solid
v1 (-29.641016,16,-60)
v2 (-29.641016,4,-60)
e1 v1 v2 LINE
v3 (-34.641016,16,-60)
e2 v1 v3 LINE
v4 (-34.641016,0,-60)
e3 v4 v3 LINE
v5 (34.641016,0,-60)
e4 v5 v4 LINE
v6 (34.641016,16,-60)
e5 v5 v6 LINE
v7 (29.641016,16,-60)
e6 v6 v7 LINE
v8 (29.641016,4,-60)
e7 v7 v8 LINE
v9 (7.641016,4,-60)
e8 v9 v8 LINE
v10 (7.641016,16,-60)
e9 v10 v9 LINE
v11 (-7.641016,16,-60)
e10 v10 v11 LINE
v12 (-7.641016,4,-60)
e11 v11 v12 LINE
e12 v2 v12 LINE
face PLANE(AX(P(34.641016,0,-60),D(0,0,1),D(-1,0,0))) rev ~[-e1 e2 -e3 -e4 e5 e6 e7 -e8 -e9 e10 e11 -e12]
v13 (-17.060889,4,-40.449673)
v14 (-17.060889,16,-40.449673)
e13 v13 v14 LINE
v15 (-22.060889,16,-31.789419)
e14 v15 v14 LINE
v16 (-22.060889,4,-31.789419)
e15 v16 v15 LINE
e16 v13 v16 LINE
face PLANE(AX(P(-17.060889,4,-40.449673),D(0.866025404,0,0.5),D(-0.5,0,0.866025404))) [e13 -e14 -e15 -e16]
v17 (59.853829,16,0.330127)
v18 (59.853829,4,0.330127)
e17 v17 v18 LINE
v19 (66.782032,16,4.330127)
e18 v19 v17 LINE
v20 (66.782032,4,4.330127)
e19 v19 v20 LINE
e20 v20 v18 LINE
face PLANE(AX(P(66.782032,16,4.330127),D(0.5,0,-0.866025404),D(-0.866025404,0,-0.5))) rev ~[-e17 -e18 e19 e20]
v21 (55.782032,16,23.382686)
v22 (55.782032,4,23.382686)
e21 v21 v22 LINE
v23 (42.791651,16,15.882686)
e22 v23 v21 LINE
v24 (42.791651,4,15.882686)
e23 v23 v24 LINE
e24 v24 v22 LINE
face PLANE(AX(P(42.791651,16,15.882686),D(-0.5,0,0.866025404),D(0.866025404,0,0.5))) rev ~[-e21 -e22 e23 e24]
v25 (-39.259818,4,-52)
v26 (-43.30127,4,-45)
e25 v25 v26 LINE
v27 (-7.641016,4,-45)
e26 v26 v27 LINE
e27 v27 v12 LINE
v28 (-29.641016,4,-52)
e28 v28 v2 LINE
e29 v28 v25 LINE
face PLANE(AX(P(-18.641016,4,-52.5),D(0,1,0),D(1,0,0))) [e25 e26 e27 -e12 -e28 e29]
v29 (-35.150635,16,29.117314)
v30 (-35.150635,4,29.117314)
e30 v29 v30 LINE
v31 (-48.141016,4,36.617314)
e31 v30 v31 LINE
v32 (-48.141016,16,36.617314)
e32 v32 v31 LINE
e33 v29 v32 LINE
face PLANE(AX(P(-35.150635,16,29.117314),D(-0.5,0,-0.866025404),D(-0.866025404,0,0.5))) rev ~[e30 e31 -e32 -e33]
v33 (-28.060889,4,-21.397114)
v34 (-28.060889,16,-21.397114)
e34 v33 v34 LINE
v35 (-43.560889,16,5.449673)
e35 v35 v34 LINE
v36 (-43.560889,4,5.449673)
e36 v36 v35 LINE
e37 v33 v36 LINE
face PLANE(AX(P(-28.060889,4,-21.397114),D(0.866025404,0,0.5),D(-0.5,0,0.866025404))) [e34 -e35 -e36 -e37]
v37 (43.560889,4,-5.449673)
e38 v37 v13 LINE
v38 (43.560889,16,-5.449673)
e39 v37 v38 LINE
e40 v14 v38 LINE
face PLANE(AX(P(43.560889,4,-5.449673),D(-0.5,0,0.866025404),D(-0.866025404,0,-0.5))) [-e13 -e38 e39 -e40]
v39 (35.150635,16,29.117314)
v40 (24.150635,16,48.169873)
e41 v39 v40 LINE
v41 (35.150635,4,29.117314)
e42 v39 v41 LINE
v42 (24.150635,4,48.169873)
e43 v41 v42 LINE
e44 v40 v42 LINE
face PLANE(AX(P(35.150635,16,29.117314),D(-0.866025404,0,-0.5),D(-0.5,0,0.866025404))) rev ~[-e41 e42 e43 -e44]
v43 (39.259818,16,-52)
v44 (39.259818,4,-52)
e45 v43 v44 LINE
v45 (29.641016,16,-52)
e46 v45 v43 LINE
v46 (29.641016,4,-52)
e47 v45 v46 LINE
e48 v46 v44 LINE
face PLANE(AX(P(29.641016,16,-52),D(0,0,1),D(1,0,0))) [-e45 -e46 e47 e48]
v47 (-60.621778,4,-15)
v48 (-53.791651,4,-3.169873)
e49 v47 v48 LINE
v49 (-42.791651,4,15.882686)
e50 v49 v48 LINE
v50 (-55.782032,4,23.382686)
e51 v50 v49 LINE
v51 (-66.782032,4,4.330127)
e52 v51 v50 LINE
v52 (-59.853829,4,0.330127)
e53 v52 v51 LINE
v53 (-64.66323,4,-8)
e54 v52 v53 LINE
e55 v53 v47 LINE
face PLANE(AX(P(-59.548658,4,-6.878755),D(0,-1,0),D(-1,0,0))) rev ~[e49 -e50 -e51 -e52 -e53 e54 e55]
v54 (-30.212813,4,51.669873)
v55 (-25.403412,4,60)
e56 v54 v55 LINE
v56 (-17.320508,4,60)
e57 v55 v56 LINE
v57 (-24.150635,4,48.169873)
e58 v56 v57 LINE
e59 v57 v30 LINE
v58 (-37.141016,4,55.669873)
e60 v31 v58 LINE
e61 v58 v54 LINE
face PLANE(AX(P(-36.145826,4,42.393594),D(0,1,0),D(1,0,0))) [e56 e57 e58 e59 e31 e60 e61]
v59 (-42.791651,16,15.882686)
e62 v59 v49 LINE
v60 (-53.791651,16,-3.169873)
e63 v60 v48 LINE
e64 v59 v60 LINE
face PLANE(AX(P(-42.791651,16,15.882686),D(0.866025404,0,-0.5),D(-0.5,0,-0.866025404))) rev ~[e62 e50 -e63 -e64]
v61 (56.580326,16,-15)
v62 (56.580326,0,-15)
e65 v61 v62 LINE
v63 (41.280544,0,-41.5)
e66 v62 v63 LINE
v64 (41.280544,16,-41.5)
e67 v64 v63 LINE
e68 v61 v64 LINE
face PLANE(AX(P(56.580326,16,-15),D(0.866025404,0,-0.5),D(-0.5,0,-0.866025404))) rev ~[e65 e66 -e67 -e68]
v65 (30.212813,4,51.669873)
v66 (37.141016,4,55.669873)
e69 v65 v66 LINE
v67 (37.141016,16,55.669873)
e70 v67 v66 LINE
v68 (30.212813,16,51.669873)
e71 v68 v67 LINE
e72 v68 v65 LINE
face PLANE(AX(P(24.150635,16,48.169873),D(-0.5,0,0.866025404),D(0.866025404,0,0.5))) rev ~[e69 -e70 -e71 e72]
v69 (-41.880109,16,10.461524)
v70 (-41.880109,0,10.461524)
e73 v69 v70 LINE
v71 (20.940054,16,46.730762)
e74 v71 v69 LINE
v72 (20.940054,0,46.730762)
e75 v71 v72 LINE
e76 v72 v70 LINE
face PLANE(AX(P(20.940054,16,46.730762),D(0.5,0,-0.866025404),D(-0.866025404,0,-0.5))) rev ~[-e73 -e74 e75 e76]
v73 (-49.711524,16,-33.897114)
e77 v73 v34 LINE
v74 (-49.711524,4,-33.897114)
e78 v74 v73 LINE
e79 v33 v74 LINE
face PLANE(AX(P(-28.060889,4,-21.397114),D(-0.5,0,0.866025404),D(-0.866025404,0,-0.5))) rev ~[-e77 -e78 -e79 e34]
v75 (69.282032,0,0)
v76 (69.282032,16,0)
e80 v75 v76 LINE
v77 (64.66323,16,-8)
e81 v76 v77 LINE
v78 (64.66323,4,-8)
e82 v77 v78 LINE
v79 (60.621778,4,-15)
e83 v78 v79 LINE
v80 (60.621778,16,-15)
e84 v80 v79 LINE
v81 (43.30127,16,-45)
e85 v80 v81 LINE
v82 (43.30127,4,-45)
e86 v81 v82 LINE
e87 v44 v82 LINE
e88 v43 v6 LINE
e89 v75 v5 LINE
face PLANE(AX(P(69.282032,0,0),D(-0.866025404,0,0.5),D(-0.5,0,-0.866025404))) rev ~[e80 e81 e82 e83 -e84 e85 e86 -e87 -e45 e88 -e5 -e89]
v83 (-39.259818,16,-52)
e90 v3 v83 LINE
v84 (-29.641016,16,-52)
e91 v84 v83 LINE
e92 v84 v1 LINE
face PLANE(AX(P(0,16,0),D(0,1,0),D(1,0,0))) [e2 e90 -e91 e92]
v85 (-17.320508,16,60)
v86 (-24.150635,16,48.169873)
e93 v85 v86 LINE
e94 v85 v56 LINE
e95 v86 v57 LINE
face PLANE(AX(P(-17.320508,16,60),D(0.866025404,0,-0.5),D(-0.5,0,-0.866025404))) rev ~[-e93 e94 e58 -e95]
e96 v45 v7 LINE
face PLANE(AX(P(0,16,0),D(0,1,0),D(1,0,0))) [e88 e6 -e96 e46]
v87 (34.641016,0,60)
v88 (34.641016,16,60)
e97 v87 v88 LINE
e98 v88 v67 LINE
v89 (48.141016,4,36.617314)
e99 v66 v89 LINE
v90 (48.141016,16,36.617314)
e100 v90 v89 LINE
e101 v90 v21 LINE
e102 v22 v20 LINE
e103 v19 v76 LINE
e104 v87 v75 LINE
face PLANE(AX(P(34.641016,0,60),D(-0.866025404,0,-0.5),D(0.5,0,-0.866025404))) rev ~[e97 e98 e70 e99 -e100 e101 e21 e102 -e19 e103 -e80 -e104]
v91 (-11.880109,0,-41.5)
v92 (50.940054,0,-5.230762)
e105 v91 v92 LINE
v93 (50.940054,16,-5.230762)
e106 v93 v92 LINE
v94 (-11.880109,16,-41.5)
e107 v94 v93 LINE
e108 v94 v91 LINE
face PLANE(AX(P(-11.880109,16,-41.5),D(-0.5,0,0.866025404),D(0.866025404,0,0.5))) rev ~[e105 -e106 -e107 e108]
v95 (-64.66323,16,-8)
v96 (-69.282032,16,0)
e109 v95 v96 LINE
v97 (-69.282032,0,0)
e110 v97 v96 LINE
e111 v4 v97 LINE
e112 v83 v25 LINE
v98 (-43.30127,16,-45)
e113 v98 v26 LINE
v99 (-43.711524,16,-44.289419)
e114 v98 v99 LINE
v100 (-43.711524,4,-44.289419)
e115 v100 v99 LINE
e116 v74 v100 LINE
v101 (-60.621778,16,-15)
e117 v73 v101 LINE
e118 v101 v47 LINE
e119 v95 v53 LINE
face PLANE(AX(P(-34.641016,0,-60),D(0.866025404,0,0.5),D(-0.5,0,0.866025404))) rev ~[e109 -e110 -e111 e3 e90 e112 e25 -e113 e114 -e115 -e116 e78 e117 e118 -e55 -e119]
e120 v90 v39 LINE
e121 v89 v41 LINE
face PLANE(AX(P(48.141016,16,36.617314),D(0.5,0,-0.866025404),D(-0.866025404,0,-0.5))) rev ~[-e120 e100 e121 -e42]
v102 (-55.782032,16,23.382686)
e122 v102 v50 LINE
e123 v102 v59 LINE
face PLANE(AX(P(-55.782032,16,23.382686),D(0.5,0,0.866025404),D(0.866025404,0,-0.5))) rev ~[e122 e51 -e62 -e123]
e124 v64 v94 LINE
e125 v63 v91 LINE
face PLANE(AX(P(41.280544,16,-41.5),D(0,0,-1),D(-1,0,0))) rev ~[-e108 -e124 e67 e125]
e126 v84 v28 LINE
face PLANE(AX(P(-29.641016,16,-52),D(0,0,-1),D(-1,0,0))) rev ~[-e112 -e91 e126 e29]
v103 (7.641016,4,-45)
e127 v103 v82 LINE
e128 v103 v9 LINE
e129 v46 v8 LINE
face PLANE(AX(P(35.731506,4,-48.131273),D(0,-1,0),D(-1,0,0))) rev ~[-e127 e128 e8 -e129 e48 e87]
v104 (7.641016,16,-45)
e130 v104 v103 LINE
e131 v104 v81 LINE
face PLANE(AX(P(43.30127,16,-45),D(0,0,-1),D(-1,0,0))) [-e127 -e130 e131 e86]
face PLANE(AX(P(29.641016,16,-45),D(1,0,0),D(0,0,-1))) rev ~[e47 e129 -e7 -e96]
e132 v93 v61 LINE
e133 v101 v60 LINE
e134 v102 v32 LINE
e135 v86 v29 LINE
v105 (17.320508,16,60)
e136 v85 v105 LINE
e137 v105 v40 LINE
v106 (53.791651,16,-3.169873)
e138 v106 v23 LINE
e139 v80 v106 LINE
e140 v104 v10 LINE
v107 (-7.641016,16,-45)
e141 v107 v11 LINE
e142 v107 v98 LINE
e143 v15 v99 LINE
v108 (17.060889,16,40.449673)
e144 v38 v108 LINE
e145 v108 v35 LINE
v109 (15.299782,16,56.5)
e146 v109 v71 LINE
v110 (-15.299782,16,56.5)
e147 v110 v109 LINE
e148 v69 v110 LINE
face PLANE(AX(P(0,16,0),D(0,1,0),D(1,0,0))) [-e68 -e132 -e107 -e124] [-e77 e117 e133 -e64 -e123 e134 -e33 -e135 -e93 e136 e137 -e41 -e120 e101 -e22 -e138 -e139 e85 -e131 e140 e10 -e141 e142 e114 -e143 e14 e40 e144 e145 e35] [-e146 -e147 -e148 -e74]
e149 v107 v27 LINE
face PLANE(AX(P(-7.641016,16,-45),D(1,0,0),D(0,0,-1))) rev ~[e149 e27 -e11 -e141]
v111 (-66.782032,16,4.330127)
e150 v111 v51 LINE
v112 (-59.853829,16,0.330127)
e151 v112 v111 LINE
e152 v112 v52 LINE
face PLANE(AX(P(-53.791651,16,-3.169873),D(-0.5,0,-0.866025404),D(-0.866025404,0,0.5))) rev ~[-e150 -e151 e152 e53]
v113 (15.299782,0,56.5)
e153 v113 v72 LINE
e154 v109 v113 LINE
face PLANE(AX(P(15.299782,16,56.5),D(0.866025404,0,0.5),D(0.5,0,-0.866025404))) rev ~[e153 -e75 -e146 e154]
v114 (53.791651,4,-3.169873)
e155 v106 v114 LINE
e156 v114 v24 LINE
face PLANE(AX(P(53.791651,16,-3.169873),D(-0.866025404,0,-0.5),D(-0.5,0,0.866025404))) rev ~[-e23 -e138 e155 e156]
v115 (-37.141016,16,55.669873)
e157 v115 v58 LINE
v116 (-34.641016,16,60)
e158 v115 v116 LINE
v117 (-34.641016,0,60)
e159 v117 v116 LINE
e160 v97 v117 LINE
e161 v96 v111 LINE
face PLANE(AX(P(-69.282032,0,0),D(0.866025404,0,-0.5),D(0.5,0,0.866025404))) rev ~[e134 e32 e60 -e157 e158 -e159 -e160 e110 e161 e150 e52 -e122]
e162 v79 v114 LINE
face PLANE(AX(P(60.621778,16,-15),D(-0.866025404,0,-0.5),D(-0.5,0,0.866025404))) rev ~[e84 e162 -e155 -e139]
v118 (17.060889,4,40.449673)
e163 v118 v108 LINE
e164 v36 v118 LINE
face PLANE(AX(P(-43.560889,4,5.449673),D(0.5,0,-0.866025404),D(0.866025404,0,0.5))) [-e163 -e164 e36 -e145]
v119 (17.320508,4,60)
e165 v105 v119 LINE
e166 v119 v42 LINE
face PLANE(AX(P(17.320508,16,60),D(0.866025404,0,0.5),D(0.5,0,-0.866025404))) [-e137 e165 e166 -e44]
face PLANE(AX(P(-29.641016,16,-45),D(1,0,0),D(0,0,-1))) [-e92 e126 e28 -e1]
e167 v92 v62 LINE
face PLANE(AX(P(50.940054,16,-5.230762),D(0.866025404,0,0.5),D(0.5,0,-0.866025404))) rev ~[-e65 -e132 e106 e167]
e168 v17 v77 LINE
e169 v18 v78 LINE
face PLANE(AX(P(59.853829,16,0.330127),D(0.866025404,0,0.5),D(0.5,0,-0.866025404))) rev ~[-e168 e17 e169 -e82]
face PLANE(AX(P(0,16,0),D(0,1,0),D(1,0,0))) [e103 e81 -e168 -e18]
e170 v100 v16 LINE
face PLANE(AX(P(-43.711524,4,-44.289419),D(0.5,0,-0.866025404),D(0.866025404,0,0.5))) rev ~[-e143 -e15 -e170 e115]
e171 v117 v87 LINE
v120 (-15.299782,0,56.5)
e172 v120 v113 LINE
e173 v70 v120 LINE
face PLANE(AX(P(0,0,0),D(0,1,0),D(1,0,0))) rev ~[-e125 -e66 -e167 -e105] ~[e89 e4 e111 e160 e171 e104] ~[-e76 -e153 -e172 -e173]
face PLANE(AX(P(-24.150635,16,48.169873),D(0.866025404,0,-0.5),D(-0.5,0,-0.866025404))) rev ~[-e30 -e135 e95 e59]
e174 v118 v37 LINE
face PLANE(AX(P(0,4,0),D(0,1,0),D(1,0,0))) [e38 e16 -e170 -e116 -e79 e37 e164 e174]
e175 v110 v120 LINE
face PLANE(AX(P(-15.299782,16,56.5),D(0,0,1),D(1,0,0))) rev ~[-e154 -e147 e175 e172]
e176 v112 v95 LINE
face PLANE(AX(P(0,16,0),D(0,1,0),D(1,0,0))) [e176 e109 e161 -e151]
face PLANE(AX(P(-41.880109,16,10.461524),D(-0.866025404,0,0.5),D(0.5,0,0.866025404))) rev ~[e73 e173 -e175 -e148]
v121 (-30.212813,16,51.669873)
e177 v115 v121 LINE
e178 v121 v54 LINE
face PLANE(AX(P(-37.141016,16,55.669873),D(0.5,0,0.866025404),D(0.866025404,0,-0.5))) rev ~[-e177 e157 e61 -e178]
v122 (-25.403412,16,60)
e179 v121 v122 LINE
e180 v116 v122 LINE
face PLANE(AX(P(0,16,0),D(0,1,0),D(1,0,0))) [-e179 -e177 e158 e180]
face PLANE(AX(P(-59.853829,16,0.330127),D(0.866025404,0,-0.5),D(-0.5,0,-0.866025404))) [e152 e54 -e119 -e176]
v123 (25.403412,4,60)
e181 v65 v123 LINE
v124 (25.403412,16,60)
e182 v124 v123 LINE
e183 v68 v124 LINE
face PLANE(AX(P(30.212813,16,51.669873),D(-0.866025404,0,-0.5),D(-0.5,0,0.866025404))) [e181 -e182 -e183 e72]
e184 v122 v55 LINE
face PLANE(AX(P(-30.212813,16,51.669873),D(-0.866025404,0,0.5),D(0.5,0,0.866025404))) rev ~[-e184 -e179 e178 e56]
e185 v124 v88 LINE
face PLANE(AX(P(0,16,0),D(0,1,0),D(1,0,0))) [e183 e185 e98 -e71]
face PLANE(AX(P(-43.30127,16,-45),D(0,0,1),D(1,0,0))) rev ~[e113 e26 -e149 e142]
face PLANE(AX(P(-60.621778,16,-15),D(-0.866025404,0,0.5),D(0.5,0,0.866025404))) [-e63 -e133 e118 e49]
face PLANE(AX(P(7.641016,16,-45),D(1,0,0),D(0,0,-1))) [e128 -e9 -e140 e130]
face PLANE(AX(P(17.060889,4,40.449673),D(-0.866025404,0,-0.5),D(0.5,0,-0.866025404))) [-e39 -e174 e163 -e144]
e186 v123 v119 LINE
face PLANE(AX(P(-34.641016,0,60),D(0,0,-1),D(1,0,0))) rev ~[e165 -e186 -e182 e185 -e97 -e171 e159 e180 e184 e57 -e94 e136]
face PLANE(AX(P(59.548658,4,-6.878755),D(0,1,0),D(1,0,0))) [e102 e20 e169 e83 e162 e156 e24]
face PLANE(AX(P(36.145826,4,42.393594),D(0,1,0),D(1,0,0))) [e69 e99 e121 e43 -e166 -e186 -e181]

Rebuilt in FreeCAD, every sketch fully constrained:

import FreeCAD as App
import Part
import Sketcher
Q = App.Units.Quantity


def add_polygon(sketch, points):
    """Adds a closed chain of lines whose ends are joined by coincident constraints."""
    first, n = sketch.GeometryCount, len(points)
    for a, b in zip(points, points[1:] + points[:1]):
        sketch.addGeometry(Part.LineSegment(App.Vector(*a, 0), App.Vector(*b, 0)), False)
    for i in range(n):
        sketch.addConstraint(Sketcher.Constraint("Coincident", first + i, 2, first + (i + 1) % n, 1))

doc = App.newDocument("Part")
body = doc.addObject("PartDesign::Body", "Body")

# Sketch on XZ plane
sketch1 = doc.addObject("Sketcher::SketchObject", "Sketch")
body.addObject(sketch1)
sketch1.AttachmentSupport = (doc.XZ_Plane, [""])
sketch1.MapMode = "FlatFace"
add_polygon(sketch1, [(69, 0), (35, -60), (-35, -60), (-69, 0), (-35, 60), (35, 60)])  # lines 0-5
sketch1.addConstraint([
    Sketcher.Constraint("Horizontal", 1),
    Sketcher.Constraint("Horizontal", 4),
    Sketcher.Constraint("Symmetric", 0, 2, 3, 2, -1, 1),
    Sketcher.Constraint("Symmetric", 2, 2, 5, 2, -1, 1),
    Sketcher.Constraint("PointOnObject", 2, 2, -1),
    Sketcher.Constraint("Parallel", 2, 5),
    Sketcher.Constraint("Vertical", 1, 2, 3, 2),
    Sketcher.Constraint("Angle", 0, Q("-120 deg")),
    Sketcher.Constraint("DistanceY", 0, 2, -1, 1, 60.0),
    Sketcher.Constraint("DistanceX", 1, 2, 1, 1, 69.282032),
])
pad1 = doc.addObject("PartDesign::Pad", "Pad")
body.addObject(pad1)
pad1.Profile = sketch1
pad1.Length = 16
pad1.Reversed = True

# Sketch on XZ plane
sketch2 = doc.addObject("Sketcher::SketchObject", "Sketch001")
body.addObject(sketch2)
sketch2.AttachmentSupport = (doc.XZ_Plane, [""])
sketch2.MapMode = "FlatFace"
sketch2.AttachmentOffset = App.Placement(App.Vector(0, 0, -16), App.Rotation())
add_polygon(sketch2, [(-30, -60), (-30, -45), (-8, -45), (-8, -60)])  # lines 0-3
add_polygon(sketch2, [(8, -60), (8, -45), (30, -45), (30, -60)])  # lines 4-7
add_polygon(sketch2, [(67, 4), (54, -3), (43, 16), (56, 23)])  # lines 8-11
add_polygon(sketch2, [(48, 37), (35, 29), (24, 48), (37, 56)])  # lines 12-15
add_polygon(sketch2, [(-37, 56), (-24, 48), (-35, 29), (-48, 37)])  # lines 16-19
add_polygon(sketch2, [(-56, 23), (-43, 16), (-54, -3), (-67, 4)])  # lines 20-23
sketch2.addConstraint([
    Sketcher.Constraint("Vertical", 0),
    Sketcher.Constraint("Horizontal", 1),
    Sketcher.Constraint("Vertical", 2),
    Sketcher.Constraint("Horizontal", 3),
    Sketcher.Constraint("Vertical", 4),
    Sketcher.Constraint("Horizontal", 5),
    Sketcher.Constraint("Vertical", 6),
    Sketcher.Constraint("Horizontal", 7),
    Sketcher.Constraint("Symmetric", 1, 2, 4, 2, -2),
    Sketcher.Constraint("Symmetric", 3, 2, 6, 2, -2),
    Sketcher.Constraint("Symmetric", 13, 2, 16, 2, -2),
    Sketcher.Constraint("Symmetric", 12, 2, 17, 2, -2),
    Sketcher.Constraint("Symmetric", 15, 2, 18, 2, -2),
    Sketcher.Constraint("Symmetric", 14, 2, 19, 2, -2),
    Sketcher.Constraint("Symmetric", 9, 2, 20, 2, -2),
    Sketcher.Constraint("Symmetric", 8, 2, 21, 2, -2),
    Sketcher.Constraint("Symmetric", 11, 2, 22, 2, -2),
    Sketcher.Constraint("Symmetric", 10, 2, 23, 2, -2),
    Sketcher.Constraint("Perpendicular", 8, 9),
    Sketcher.Constraint("Perpendicular", 9, 10),
    Sketcher.Constraint("Perpendicular", 10, 11),
    Sketcher.Constraint("Perpendicular", 11, 12),
    Sketcher.Constraint("Perpendicular", 12, 13),
    Sketcher.Constraint("Perpendicular", 13, 14),
    Sketcher.Constraint("Perpendicular", 14, 15),
    Sketcher.Constraint("Equal", 10, 12),
    Sketcher.Constraint("Equal", 11, 13),
    Sketcher.Constraint("DistanceX", 1, 1, 1, 2, 22.0),
    Sketcher.Constraint("DistanceY", 0, 1, 0, 2, 15.0),
    Sketcher.Constraint("Angle", 8, Q("-150 deg")),
    Sketcher.Constraint("Distance", 8, 15.0),
    Sketcher.Constraint("Distance", 9, 22.0),
    Sketcher.Constraint("DistanceY", 0, 2, -1, 1, 45.0),
    Sketcher.Constraint("DistanceX", 18, 2, 0, 2, 18.5),
    Sketcher.Constraint("DistanceX", -1, 1, 8, 2, 53.791651),
    Sketcher.Constraint("DistanceY", 9, 2, 12, 2, 13.234628),
    Sketcher.Constraint("DistanceX", 16, 2, 13, 2, 48.30127),
    Sketcher.Constraint("DistanceY", 8, 2, -1, 1, 3.169873),
])
pocket1 = doc.addObject("PartDesign::Pocket", "Pocket")
body.addObject(pocket1)
pocket1.Profile = sketch2
pocket1.Length = 12
pocket1.Reversed = True

# Sketch on XZ plane
sketch3 = doc.addObject("Sketcher::SketchObject", "Sketch002")
body.addObject(sketch3)
sketch3.AttachmentSupport = (doc.XZ_Plane, [""])
sketch3.MapMode = "FlatFace"
sketch3.AttachmentOffset = App.Placement(App.Vector(0, 0, -16), App.Rotation())
add_polygon(sketch3, [(-44, 5), (17, 40), (44, -5), (-17, -40), (-22, -32), (-44, -44), (-50, -34), (-28, -21)])  # lines 0-7
sketch3.addConstraint([
    Sketcher.Constraint("Symmetric", 0, 2, 2, 2, -1, 1),
    Sketcher.Constraint("Symmetric", 1, 2, 7, 2, -1, 1),
    Sketcher.Constraint("Perpendicular", 0, 1),
    Sketcher.Constraint("Perpendicular", 2, 3),
    Sketcher.Constraint("Perpendicular", 3, 4),
    Sketcher.Constraint("Perpendicular", 4, 5),
    Sketcher.Constraint("Perpendicular", 5, 6),
    Sketcher.Constraint("Perpendicular", 6, 7),
    Sketcher.Constraint("Angle", 0, Q("30 deg")),
    Sketcher.Constraint("Distance", 0, 70.0),
    Sketcher.Constraint("Distance", 1, 53.0),
    Sketcher.Constraint("Distance", 3, 10.0),
    Sketcher.Constraint("Distance", 4, 25.0),
    Sketcher.Constraint("Distance", 5, 12.0),
])
pocket2 = doc.addObject("PartDesign::Pocket", "Pocket001")
body.addObject(pocket2)
pocket2.Profile = sketch3
pocket2.Type = "TwoLengths"
pocket2.Length = 94.037627
pocket2.Length2 = 12

# Sketch on XZ plane
sketch4 = doc.addObject("Sketcher::SketchObject", "Sketch003")
body.addObject(sketch4)
sketch4.AttachmentSupport = (doc.XZ_Plane, [""])
sketch4.MapMode = "FlatFace"
sketch4.AttachmentOffset = App.Placement(App.Vector(0, 0, -16), App.Rotation())
add_polygon(sketch4, [(-60, 0), (-54, -3), (-61, -15), (-65, -8)])  # lines 0-3
add_polygon(sketch4, [(-24, 48), (-30, 52), (-25, 60), (-17, 60)])  # lines 4-7
add_polygon(sketch4, [(30, -45), (43, -45), (39, -52), (30, -52)])  # lines 8-11
add_polygon(sketch4, [(-43, -45), (-30, -45), (-30, -52), (-39, -52)])  # lines 12-15
add_polygon(sketch4, [(24, 48), (17, 60), (25, 60), (30, 52)])  # lines 16-19
add_polygon(sketch4, [(61, -15), (54, -3), (60, 0), (65, -8)])  # lines 20-23
sketch4.addConstraint([
    Sketcher.Constraint("Horizontal", 6),
    Sketcher.Constraint("Horizontal", 8),
    Sketcher.Constraint("Horizontal", 10),
    Sketcher.Constraint("Vertical", 11),
    Sketcher.Constraint("Horizontal", 12),
    Sketcher.Constraint("Vertical", 13),
    Sketcher.Constraint("Horizontal", 14),
    Sketcher.Constraint("Horizontal", 17),
    Sketcher.Constraint("Symmetric", 11, 2, 12, 2, -2),
    Sketcher.Constraint("Symmetric", 9, 2, 14, 2, -2),
    Sketcher.Constraint("Symmetric", 6, 2, 16, 2, -2),
    Sketcher.Constraint("Symmetric", 4, 2, 18, 2, -2),
    Sketcher.Constraint("Symmetric", 7, 2, 19, 2, -2),
    Sketcher.Constraint("Symmetric", 0, 2, 20, 2, -2),
    Sketcher.Constraint("Symmetric", 3, 2, 21, 2, -2),
    Sketcher.Constraint("Symmetric", 2, 2, 22, 2, -2),
    Sketcher.Constraint("Symmetric", 1, 2, 23, 2, -2),
    Sketcher.Constraint("Perpendicular", 0, 1),
    Sketcher.Constraint("Parallel", 1, 3),
    Sketcher.Constraint("Perpendicular", 3, 4),
    Sketcher.Constraint("Perpendicular", 4, 5),
    Sketcher.Constraint("Parallel", 5, 7),
    Sketcher.Constraint("Parallel", 7, 9),
    Sketcher.Constraint("Parallel", 2, 15),
    Sketcher.Constraint("Parallel", 15, 16),
    Sketcher.Constraint("Parallel", 16, 18),
    Sketcher.Constraint("Equal", 0, 4),
    Sketcher.Constraint("Equal", 3, 5),
    Sketcher.Constraint("Equal", 1, 7),
    Sketcher.Constraint("Equal", 2, 9),
    Sketcher.Constraint("DistanceY", 11, 1, 11, 2, 7.0),
    Sketcher.Constraint("DistanceY", 1, 2, -1, 1, 15.0),
    Sketcher.Constraint("DistanceY", -1, 1, 5, 2, 60.0),
    Sketcher.Constraint("DistanceY", 8, 2, -1, 1, 45.0),
    Sketcher.Constraint("DistanceX", 2, 2, 3, 2, 4.809401),
    Sketcher.Constraint("DistanceX", 3, 2, 8, 2, 103.155099),
    Sketcher.Constraint("DistanceX", 8, 1, 8, 2, 13.660254),
    Sketcher.Constraint("DistanceX", 0, 2, -1, 1, 53.791651),
    Sketcher.Constraint("DistanceX", 5, 2, -1, 1, 25.403412),
])
pocket3 = doc.addObject("PartDesign::Pocket", "Pocket002")
body.addObject(pocket3)
pocket3.Profile = sketch4
pocket3.Length = 12
pocket3.Reversed = True

# Sketch on XZ plane
sketch5 = doc.addObject("Sketcher::SketchObject", "Sketch004")
body.addObject(sketch5)
sketch5.AttachmentSupport = (doc.XZ_Plane, [""])
sketch5.MapMode = "FlatFace"
sketch5.AttachmentOffset = App.Placement(App.Vector(0, 0, -16), App.Rotation())
add_polygon(sketch5, [(-42, 10), (-15, 56), (15, 56), (21, 47)])  # lines 0-3
add_polygon(sketch5, [(-12, -42), (51, -5), (57, -15), (41, -42)])  # lines 4-7
sketch5.addConstraint([
    Sketcher.Constraint("Horizontal", 1),
    Sketcher.Constraint("Horizontal", 7),
    Sketcher.Constraint("Perpendicular", 2, 3),
    Sketcher.Constraint("Parallel", 3, 4),
    Sketcher.Constraint("Perpendicular", 4, 5),
    Sketcher.Constraint("Parallel", 0, 6),
    Sketcher.Constraint("Equal", 3, 4),
    Sketcher.Constraint("Equal", 2, 5),
    Sketcher.Constraint("Angle", 0, Q("60 deg")),
    Sketcher.Constraint("Angle", 2, Q("-60 deg")),
    Sketcher.Constraint("DistanceY", 5, 2, -1, 1, 15.0),
    Sketcher.Constraint("DistanceX", 2, 2, 4, 2, 30.0),
    Sketcher.Constraint("DistanceY", 6, 2, 1, 2, 98.0),
    Sketcher.Constraint("DistanceY", -1, 1, 0, 2, 56.5),
    Sketcher.Constraint("DistanceX", 7, 2, 7, 1, 53.160653),
    Sketcher.Constraint("DistanceX", 3, 2, -1, 1, 41.880109),
])
pocket4 = doc.addObject("PartDesign::Pocket", "Pocket003")
body.addObject(pocket4)
pocket4.Profile = sketch5
pocket4.Type = "ThroughAll"
pocket4.Reversed = True

doc.recompute()
